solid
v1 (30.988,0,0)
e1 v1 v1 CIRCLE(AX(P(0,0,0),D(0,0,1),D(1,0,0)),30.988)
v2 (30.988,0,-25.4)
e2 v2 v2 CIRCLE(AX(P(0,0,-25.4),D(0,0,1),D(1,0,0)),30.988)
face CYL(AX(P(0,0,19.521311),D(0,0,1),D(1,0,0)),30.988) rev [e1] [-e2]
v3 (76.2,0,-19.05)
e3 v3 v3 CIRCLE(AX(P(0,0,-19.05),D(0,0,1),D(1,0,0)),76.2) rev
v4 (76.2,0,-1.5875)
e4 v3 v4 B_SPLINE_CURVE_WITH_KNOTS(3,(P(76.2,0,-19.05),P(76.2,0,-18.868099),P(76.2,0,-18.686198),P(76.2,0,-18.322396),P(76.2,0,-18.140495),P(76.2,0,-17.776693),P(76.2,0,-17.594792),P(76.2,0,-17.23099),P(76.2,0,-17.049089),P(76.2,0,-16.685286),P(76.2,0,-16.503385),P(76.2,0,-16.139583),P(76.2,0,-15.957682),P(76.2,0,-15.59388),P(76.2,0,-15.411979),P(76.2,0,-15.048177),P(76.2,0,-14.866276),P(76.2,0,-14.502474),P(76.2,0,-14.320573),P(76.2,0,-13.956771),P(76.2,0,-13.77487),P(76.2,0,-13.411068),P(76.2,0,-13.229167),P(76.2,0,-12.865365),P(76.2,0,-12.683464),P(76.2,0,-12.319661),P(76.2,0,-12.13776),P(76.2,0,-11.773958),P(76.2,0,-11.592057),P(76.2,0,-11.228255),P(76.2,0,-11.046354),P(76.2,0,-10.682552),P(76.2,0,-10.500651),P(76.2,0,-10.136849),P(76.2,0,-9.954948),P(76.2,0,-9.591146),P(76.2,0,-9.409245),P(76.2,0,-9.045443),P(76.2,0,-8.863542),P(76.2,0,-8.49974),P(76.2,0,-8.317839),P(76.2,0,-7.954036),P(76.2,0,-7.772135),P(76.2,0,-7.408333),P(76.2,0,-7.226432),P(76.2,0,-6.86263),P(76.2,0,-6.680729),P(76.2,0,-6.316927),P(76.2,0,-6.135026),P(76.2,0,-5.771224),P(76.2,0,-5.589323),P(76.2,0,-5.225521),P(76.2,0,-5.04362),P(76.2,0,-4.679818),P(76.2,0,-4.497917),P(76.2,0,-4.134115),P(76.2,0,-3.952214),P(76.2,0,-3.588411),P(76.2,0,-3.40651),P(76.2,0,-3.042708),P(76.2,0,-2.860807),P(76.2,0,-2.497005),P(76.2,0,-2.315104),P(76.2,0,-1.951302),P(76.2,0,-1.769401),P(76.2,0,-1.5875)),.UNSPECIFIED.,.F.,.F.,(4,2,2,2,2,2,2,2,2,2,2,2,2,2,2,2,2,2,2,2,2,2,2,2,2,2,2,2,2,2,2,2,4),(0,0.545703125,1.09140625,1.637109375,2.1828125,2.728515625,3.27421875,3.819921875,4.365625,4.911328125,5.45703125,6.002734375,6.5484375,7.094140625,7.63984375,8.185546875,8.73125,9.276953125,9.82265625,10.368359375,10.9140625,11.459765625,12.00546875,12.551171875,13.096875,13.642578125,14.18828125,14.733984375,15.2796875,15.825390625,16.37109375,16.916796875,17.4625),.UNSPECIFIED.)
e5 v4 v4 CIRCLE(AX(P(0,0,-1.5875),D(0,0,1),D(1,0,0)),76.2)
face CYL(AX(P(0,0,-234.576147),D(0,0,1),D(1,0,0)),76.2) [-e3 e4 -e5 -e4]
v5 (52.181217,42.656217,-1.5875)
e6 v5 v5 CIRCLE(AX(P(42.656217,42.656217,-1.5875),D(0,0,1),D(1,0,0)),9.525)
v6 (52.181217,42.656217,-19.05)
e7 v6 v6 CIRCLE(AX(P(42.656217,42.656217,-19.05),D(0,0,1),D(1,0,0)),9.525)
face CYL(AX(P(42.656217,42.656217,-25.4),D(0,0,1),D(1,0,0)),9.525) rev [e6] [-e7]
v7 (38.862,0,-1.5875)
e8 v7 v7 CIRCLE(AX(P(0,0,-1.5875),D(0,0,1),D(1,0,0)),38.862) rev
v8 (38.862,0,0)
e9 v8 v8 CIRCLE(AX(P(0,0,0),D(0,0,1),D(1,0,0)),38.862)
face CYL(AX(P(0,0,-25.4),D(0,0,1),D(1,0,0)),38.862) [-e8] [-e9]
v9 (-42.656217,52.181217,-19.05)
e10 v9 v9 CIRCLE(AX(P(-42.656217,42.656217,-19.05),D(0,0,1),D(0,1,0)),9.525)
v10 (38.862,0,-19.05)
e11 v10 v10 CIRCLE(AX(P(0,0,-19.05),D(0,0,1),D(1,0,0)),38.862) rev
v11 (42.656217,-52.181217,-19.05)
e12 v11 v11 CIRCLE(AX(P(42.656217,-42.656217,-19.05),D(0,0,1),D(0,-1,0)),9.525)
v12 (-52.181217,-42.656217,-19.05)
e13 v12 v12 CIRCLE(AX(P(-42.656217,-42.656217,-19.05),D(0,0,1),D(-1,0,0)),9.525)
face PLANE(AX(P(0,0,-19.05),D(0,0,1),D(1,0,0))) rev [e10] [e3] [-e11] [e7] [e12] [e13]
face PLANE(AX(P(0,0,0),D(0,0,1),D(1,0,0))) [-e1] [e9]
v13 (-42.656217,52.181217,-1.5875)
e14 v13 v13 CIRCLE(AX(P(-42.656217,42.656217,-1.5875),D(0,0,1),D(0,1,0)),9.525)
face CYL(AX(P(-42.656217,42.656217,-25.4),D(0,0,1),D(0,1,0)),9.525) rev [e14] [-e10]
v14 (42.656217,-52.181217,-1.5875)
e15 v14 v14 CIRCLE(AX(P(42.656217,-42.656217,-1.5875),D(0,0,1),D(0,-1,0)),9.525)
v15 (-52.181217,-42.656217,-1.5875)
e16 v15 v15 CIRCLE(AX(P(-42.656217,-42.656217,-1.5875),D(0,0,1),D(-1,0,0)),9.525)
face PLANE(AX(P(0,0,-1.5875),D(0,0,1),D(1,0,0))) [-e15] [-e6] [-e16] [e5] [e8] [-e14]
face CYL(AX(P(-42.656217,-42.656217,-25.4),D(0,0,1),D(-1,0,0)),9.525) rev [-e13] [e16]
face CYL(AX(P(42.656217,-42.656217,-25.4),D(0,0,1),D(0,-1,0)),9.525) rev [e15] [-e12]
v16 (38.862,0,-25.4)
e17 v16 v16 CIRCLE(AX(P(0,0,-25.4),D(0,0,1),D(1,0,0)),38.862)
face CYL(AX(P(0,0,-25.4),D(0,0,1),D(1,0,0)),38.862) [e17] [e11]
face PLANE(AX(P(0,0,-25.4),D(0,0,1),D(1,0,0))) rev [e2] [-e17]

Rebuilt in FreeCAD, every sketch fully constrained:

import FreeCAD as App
import Part
import Sketcher

V = App.Vector
Q = App.Units.Quantity

doc = App.newDocument("Part")
body = doc.addObject("PartDesign::Body", "Body")

# Sketch on XY plane
sketch1 = body.newObject("Sketcher::SketchObject", "Sketch")
sketch1.AttachmentSupport = (doc.getObject("XY_Plane"), [""])
sketch1.MapMode = "FlatFace"
sketch1.addGeometry(Part.Circle(V(0, 0, 0), V(0, 0, 1), 38.862), False)
sketch1.addConstraint([
    Sketcher.Constraint("Coincident", 0, 3, -1, 1),
    Sketcher.Constraint("Diameter", 0, Q("3.06 in")),
])
pad1 = body.newObject("PartDesign::Pad", "Pad")
pad1.Profile = sketch1
pad1.Length = Q("1 in")
pad1.Reversed = True

# Sketch on XY plane
sketch2 = body.newObject("Sketcher::SketchObject", "Sketch001")
sketch2.AttachmentSupport = (doc.getObject("XY_Plane"), [""])
sketch2.MapMode = "FlatFace"
sketch2.AttachmentOffset = App.Placement(V(0, 0, -0.0625 * 25.4), App.Rotation())
sketch2.addGeometry(Part.Circle(V(0, 0, 0), V(0, 0, 1), 76.2), False)
sketch2.addConstraint([
    Sketcher.Constraint("Coincident", 0, 3, -1, 1),
    Sketcher.Constraint("Diameter", 0, Q("6 in")),
])
pad2 = body.newObject("PartDesign::Pad", "Pad001")
pad2.Profile = sketch2
pad2.Length = Q("0.6875 in")
pad2.Reversed = True

# Sketch on XZ plane
sketch3 = body.newObject("Sketcher::SketchObject", "Sketch002")
sketch3.AttachmentSupport = (doc.getObject("XZ_Plane"), [""])
sketch3.MapMode = "FlatFace"
sketch3.addGeometry([
    Part.LineSegment(V(0, -228.6, 0), V(0, 0, 0)),
    Part.LineSegment(V(0, 0, 0), V(30.988, 0, 0)),
    Part.LineSegment(V(30.988, 0, 0), V(30.988, -228.6, 0)),
    Part.LineSegment(V(30.988, -228.6, 0), V(0, -228.6, 0)),
], False)
sketch3.addConstraint([
    Sketcher.Constraint("Coincident", 0, 2, 1, 1),
    Sketcher.Constraint("Coincident", 1, 2, 2, 1),
    Sketcher.Constraint("Coincident", 2, 2, 3, 1),
    Sketcher.Constraint("Coincident", 3, 2, 0, 1),
    Sketcher.Constraint("Vertical", 0),
    Sketcher.Constraint("Horizontal", 1),
    Sketcher.Constraint("Vertical", 2),
    Sketcher.Constraint("Horizontal", 3),
    Sketcher.Constraint("Coincident", 0, 2, -1, 1),
    Sketcher.Constraint("DistanceY", 0, 1, 0, 2, Q("9 in")),
    Sketcher.Constraint("DistanceX", 1, 1, 1, 2, Q("1.22 in")),
])
groove = body.newObject("PartDesign::Groove", "Groove")
groove.Profile = sketch3
groove.ReferenceAxis = (sketch3, ["V_Axis"])
groove.Angle = 360

# Sketch on XY plane
sketch4 = body.newObject("Sketcher::SketchObject", "Sketch003")
sketch4.AttachmentSupport = (doc.getObject("XY_Plane"), [""])
sketch4.MapMode = "FlatFace"
sketch4.AttachmentOffset = App.Placement(V(0, 0, -0.0625 * 25.4), App.Rotation())
sketch4.addGeometry(Part.Circle(V(42.656217, 42.656217, 0), V(0, 0, 1), 9.525), False)
sketch4.addConstraint([
    Sketcher.Constraint("Diameter", 0, Q("0.75 in")),
    Sketcher.Constraint("DistanceX", -1, 1, 0, 3, 42.656217),
    Sketcher.Constraint("DistanceY", -1, 1, 0, 3, 42.656217),
])
pocket1 = body.newObject("PartDesign::Pocket", "Pocket")
pocket1.Profile = sketch4
pocket1.Type = "ThroughAll"
doc.recompute()

polarpattern = body.newObject("PartDesign::PolarPattern", "PolarPattern")
polarpattern.Originals = [pocket1]
polarpattern.Axis = (doc.getObject("Z_Axis"), [""])
polarpattern.Angle = 360
polarpattern.Occurrences = 4
body.Tip = polarpattern

doc.recompute()
